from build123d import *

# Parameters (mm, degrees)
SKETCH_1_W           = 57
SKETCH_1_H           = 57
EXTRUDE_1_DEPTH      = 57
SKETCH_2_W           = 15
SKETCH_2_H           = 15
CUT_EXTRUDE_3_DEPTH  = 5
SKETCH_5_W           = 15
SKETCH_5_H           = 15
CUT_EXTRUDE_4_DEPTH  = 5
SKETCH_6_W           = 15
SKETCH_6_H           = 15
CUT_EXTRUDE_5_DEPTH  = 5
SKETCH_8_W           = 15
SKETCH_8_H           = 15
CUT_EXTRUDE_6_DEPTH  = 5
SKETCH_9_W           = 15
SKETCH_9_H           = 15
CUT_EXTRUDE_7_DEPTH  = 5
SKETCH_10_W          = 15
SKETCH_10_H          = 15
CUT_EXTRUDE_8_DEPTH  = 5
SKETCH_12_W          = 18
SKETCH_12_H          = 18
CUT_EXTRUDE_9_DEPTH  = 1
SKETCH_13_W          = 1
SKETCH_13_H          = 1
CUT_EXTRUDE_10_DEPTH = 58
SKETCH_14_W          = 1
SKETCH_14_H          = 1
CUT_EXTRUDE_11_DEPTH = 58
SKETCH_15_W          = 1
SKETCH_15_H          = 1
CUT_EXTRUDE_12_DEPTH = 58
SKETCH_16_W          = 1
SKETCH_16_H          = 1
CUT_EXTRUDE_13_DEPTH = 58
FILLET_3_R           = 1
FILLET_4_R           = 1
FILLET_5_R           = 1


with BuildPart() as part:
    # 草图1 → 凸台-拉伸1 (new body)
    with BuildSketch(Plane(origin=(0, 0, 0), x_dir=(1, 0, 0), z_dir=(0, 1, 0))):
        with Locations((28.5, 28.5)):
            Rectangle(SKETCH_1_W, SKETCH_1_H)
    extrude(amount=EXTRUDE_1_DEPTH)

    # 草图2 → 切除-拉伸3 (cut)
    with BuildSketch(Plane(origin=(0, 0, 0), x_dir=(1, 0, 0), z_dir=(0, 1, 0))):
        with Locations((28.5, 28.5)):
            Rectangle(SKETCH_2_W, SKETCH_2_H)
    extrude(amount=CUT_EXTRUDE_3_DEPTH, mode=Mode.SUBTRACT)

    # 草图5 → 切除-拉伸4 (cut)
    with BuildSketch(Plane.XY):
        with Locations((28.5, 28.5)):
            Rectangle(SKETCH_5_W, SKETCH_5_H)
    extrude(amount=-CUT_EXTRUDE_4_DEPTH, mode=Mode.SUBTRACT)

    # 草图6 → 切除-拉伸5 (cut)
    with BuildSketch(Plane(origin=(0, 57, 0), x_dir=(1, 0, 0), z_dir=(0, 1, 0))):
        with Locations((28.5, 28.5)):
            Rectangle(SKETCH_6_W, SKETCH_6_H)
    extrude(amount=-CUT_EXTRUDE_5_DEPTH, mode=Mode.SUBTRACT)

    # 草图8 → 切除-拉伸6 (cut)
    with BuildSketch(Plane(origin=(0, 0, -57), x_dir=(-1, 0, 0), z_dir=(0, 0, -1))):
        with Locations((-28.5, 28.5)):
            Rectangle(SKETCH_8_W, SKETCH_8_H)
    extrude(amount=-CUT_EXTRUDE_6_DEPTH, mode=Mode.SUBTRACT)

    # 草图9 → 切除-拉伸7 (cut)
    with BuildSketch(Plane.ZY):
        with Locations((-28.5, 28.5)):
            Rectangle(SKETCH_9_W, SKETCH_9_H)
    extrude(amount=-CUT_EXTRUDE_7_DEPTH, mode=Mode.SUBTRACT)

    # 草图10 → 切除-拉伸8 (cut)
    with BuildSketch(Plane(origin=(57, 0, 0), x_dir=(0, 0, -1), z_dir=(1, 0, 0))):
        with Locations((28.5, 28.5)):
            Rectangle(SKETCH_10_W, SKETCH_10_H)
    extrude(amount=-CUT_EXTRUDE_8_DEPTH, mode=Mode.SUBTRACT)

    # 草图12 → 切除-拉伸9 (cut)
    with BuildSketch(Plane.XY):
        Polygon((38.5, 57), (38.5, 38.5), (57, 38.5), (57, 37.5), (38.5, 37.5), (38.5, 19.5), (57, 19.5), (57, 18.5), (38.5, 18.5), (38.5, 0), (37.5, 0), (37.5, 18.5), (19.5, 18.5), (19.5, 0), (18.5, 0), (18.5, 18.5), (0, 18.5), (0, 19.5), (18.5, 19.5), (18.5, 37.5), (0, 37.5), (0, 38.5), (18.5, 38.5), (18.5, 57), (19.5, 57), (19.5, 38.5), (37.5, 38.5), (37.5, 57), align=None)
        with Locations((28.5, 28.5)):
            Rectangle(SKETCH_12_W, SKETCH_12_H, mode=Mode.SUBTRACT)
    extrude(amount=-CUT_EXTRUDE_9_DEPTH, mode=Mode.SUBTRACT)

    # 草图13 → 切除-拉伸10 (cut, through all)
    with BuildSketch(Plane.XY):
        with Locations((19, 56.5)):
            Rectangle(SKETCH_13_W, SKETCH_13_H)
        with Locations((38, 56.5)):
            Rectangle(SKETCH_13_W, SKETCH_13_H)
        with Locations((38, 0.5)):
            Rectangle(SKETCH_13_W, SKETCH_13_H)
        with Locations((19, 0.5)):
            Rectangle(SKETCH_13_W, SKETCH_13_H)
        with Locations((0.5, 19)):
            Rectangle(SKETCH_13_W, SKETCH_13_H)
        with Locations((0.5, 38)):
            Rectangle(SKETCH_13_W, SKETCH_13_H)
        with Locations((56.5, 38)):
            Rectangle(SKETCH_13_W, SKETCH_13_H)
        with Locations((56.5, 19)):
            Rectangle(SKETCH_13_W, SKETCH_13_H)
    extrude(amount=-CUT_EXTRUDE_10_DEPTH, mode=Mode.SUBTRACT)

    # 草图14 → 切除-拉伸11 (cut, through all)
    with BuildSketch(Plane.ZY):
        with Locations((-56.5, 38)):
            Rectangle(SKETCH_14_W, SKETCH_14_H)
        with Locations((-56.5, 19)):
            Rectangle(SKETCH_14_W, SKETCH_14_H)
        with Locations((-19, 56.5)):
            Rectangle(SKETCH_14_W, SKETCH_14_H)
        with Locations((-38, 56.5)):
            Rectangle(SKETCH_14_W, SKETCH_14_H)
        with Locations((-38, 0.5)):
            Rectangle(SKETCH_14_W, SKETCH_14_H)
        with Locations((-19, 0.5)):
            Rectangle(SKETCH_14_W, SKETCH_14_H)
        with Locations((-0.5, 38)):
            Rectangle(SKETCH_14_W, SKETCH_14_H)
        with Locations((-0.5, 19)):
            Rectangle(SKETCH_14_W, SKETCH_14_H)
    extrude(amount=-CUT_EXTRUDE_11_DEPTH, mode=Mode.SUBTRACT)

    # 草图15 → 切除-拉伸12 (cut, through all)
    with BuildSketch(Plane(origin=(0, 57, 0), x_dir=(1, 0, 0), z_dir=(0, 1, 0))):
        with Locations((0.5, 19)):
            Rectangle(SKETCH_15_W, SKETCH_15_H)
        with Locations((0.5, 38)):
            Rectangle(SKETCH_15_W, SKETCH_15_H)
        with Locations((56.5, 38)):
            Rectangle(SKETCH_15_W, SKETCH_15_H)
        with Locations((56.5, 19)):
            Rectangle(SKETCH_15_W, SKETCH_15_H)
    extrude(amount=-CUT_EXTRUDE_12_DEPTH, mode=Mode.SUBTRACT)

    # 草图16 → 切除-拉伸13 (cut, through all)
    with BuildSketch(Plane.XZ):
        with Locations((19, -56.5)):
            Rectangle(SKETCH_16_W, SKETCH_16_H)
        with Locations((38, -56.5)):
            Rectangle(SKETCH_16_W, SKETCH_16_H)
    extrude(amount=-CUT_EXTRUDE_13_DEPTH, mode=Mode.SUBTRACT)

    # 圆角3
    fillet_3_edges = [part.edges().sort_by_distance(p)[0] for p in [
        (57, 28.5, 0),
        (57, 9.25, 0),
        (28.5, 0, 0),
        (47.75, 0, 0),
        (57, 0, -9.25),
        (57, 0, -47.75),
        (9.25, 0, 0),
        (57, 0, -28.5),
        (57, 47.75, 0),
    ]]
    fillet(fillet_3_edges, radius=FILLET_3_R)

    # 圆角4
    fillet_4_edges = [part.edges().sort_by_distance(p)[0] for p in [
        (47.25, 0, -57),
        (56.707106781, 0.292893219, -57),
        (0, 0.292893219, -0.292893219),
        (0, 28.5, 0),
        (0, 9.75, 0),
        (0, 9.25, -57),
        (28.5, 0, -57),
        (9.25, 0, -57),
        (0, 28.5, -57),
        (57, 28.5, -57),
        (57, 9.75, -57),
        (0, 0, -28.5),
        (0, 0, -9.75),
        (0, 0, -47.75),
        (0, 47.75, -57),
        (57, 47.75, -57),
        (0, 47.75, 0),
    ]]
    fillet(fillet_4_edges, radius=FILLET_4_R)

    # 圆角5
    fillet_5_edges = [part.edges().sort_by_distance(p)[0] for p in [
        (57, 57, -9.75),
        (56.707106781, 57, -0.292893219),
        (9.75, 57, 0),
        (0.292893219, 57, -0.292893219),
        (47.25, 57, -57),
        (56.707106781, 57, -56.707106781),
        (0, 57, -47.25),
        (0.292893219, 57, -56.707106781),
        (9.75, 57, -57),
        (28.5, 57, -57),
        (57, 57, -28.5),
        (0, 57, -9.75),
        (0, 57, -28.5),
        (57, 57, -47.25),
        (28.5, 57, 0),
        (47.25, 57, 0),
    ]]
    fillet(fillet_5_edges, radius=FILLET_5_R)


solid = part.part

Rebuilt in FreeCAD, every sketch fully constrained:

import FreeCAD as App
import Part
import Sketcher

V = App.Vector


def edges_at(feature, points):
    """Names of the edges that pass closest to the given points."""
    edges = feature.Shape.Edges
    near = lambda p: min(range(len(edges)), key=lambda i: edges[i].distToShape(Part.Vertex(*p))[0])
    return sorted({f"Edge{near(p) + 1}" for p in points})


def add_polygon(sketch, points):
    """Adds a closed chain of lines whose ends are joined by coincident constraints."""
    first, n = sketch.GeometryCount, len(points)
    for a, b in zip(points, points[1:] + points[:1]):
        sketch.addGeometry(Part.LineSegment(App.Vector(*a, 0), App.Vector(*b, 0)), False)
    for i in range(n):
        sketch.addConstraint(Sketcher.Constraint("Coincident", first + i, 2, first + (i + 1) % n, 1))

doc = App.newDocument("Part")
body = doc.addObject("PartDesign::Body", "Body")

# Sketch on XZ plane
sketch1 = body.newObject("Sketcher::SketchObject", "Sketch")
sketch1.AttachmentSupport = (doc.getObject("XZ_Plane"), [""])
sketch1.MapMode = "FlatFace"
add_polygon(sketch1, [(0, -57), (0, 0), (57, 0), (57, -57)])  # lines 0-3
sketch1.addConstraint(Sketcher.Constraint("Vertical", 0))
sketch1.addConstraint(Sketcher.Constraint("Horizontal", 1))
sketch1.addConstraint(Sketcher.Constraint("Vertical", 2))
sketch1.addConstraint(Sketcher.Constraint("Horizontal", 3))
sketch1.addConstraint(Sketcher.Constraint("Coincident", 0, 2, -1, 1))
sketch1.addConstraint(Sketcher.Constraint("Equal", 3, 0))
sketch1.addConstraint(Sketcher.Constraint("DistanceX", 1, 1, 1, 2, 57.0))
pad1 = body.newObject("PartDesign::Pad", "Pad")
pad1.Profile = sketch1
pad1.Length = 57
pad1.Reversed = True

# Sketch on XZ plane
sketch2 = body.newObject("Sketcher::SketchObject", "Sketch001")
sketch2.AttachmentSupport = (doc.getObject("XZ_Plane"), [""])
sketch2.MapMode = "FlatFace"
add_polygon(sketch2, [(21, -36), (21, -21), (36, -21), (36, -36)])  # lines 0-3
sketch2.addConstraint(Sketcher.Constraint("Vertical", 0))
sketch2.addConstraint(Sketcher.Constraint("Horizontal", 1))
sketch2.addConstraint(Sketcher.Constraint("Vertical", 2))
sketch2.addConstraint(Sketcher.Constraint("Horizontal", 3))
sketch2.addConstraint(Sketcher.Constraint("Equal", 3, 0))
sketch2.addConstraint(Sketcher.Constraint("DistanceX", 1, 1, 1, 2, 15.0))
sketch2.addConstraint(Sketcher.Constraint("DistanceX", -1, 1, 0, 2, 21.0))
sketch2.addConstraint(Sketcher.Constraint("DistanceY", 0, 2, -1, 1, 21.0))
pocket1 = body.newObject("PartDesign::Pocket", "Pocket")
pocket1.Profile = sketch2
pocket1.Length = 5

# Sketch on XY plane
sketch3 = body.newObject("Sketcher::SketchObject", "Sketch002")
sketch3.AttachmentSupport = (doc.getObject("XY_Plane"), [""])
sketch3.MapMode = "FlatFace"
add_polygon(sketch3, [(21, 36), (21, 21), (36, 21), (36, 36)])  # lines 0-3
sketch3.addConstraint(Sketcher.Constraint("Vertical", 0))
sketch3.addConstraint(Sketcher.Constraint("Horizontal", 1))
sketch3.addConstraint(Sketcher.Constraint("Vertical", 2))
sketch3.addConstraint(Sketcher.Constraint("Horizontal", 3))
sketch3.addConstraint(Sketcher.Constraint("Equal", 3, 0))
sketch3.addConstraint(Sketcher.Constraint("DistanceX", 1, 1, 1, 2, 15.0))
sketch3.addConstraint(Sketcher.Constraint("DistanceX", -1, 1, 0, 2, 21.0))
sketch3.addConstraint(Sketcher.Constraint("DistanceY", -1, 1, 0, 2, 21.0))
pocket2 = body.newObject("PartDesign::Pocket", "Pocket001")
pocket2.Profile = sketch3
pocket2.Length = 5

# Sketch on XZ plane
sketch4 = body.newObject("Sketcher::SketchObject", "Sketch003")
sketch4.AttachmentSupport = (doc.getObject("XZ_Plane"), [""])
sketch4.MapMode = "FlatFace"
sketch4.AttachmentOffset = App.Placement(V(0, 0, -57), App.Rotation())
add_polygon(sketch4, [(21, -36), (21, -21), (36, -21), (36, -36)])  # lines 0-3
sketch4.addConstraint(Sketcher.Constraint("Vertical", 0))
sketch4.addConstraint(Sketcher.Constraint("Horizontal", 1))
sketch4.addConstraint(Sketcher.Constraint("Vertical", 2))
sketch4.addConstraint(Sketcher.Constraint("Horizontal", 3))
sketch4.addConstraint(Sketcher.Constraint("Equal", 3, 0))
sketch4.addConstraint(Sketcher.Constraint("DistanceX", 1, 1, 1, 2, 15.0))
sketch4.addConstraint(Sketcher.Constraint("DistanceX", -1, 1, 0, 2, 21.0))
sketch4.addConstraint(Sketcher.Constraint("DistanceY", 0, 2, -1, 1, 21.0))
pocket3 = body.newObject("PartDesign::Pocket", "Pocket002")
pocket3.Profile = sketch4
pocket3.Length = 5
pocket3.Reversed = True

# Sketch on XY plane
sketch5 = body.newObject("Sketcher::SketchObject", "Sketch004")
sketch5.AttachmentSupport = (doc.getObject("XY_Plane"), [""])
sketch5.MapMode = "FlatFace"
sketch5.AttachmentOffset = App.Placement(V(0, 0, -57), App.Rotation())
add_polygon(sketch5, [(36, 36), (36, 21), (21, 21), (21, 36)])  # lines 0-3
sketch5.addConstraint(Sketcher.Constraint("Vertical", 0))
sketch5.addConstraint(Sketcher.Constraint("Horizontal", 1))
sketch5.addConstraint(Sketcher.Constraint("Vertical", 2))
sketch5.addConstraint(Sketcher.Constraint("Horizontal", 3))
sketch5.addConstraint(Sketcher.Constraint("Equal", 3, 0))
sketch5.addConstraint(Sketcher.Constraint("DistanceX", 1, 2, 1, 1, 15.0))
sketch5.addConstraint(Sketcher.Constraint("DistanceX", -1, 1, 0, 2, 36.0))
sketch5.addConstraint(Sketcher.Constraint("DistanceY", -1, 1, 0, 2, 21.0))
pocket4 = body.newObject("PartDesign::Pocket", "Pocket003")
pocket4.Profile = sketch5
pocket4.Length = 5
pocket4.Reversed = True

# Sketch on YZ plane
sketch6 = body.newObject("Sketcher::SketchObject", "Sketch005")
sketch6.AttachmentSupport = (doc.getObject("YZ_Plane"), [""])
sketch6.MapMode = "FlatFace"
add_polygon(sketch6, [(36, -36), (21, -36), (21, -21), (36, -21)])  # lines 0-3
sketch6.addConstraint(Sketcher.Constraint("Horizontal", 0))
sketch6.addConstraint(Sketcher.Constraint("Vertical", 1))
sketch6.addConstraint(Sketcher.Constraint("Horizontal", 2))
sketch6.addConstraint(Sketcher.Constraint("Vertical", 3))
sketch6.addConstraint(Sketcher.Constraint("Equal", 2, 1))
sketch6.addConstraint(Sketcher.Constraint("DistanceX", 0, 2, 0, 1, 15.0))
sketch6.addConstraint(Sketcher.Constraint("DistanceX", -1, 1, 0, 2, 21.0))
sketch6.addConstraint(Sketcher.Constraint("DistanceY", 0, 2, -1, 1, 36.0))
pocket5 = body.newObject("PartDesign::Pocket", "Pocket004")
pocket5.Profile = sketch6
pocket5.Length = 5
pocket5.Reversed = True

# Sketch on YZ plane
sketch7 = body.newObject("Sketcher::SketchObject", "Sketch006")
sketch7.AttachmentSupport = (doc.getObject("YZ_Plane"), [""])
sketch7.MapMode = "FlatFace"
sketch7.AttachmentOffset = App.Placement(V(0, 0, 57), App.Rotation())
add_polygon(sketch7, [(36, -21), (21, -21), (21, -36), (36, -36)])  # lines 0-3
sketch7.addConstraint(Sketcher.Constraint("Horizontal", 0))
sketch7.addConstraint(Sketcher.Constraint("Vertical", 1))
sketch7.addConstraint(Sketcher.Constraint("Horizontal", 2))
sketch7.addConstraint(Sketcher.Constraint("Vertical", 3))
sketch7.addConstraint(Sketcher.Constraint("Equal", 2, 1))
sketch7.addConstraint(Sketcher.Constraint("DistanceX", 0, 2, 0, 1, 15.0))
sketch7.addConstraint(Sketcher.Constraint("DistanceX", -1, 1, 0, 2, 21.0))
sketch7.addConstraint(Sketcher.Constraint("DistanceY", 0, 2, -1, 1, 21.0))
pocket6 = body.newObject("PartDesign::Pocket", "Pocket005")
pocket6.Profile = sketch7
pocket6.Length = 5

# Sketch on XY plane
sketch8 = body.newObject("Sketcher::SketchObject", "Sketch007")
sketch8.AttachmentSupport = (doc.getObject("XY_Plane"), [""])
sketch8.MapMode = "FlatFace"
add_polygon(sketch8, [(38.5, 38.5), (38.5, 57), (37.5, 57), (37.5, 38.5), (19.5, 38.5), (19.5, 57), (18.5, 57), (18.5, 38.5), (0, 38.5), (0, 37.5), (18.5, 37.5), (18.5, 19.5), (0, 19.5), (0, 18.5), (18.5, 18.5), (18.5, 0), (19.5, 0), (19.5, 18.5), (37.5, 18.5), (37.5, 0), (38.5, 0), (38.5, 18.5), (57, 18.5), (57, 19.5), (38.5, 19.5), (38.5, 37.5), (57, 37.5), (57, 38.5)])  # lines 0-27
add_polygon(sketch8, [(19.5, 19.5), (19.5, 37.5), (37.5, 37.5), (37.5, 19.5)])  # lines 28-31
sketch8.addConstraint(Sketcher.Constraint("Vertical", 0))
sketch8.addConstraint(Sketcher.Constraint("Horizontal", 1))
sketch8.addConstraint(Sketcher.Constraint("Vertical", 2))
sketch8.addConstraint(Sketcher.Constraint("Horizontal", 3))
sketch8.addConstraint(Sketcher.Constraint("Vertical", 4))
sketch8.addConstraint(Sketcher.Constraint("Horizontal", 5))
sketch8.addConstraint(Sketcher.Constraint("Vertical", 6))
sketch8.addConstraint(Sketcher.Constraint("Horizontal", 7))
sketch8.addConstraint(Sketcher.Constraint("Vertical", 8))
sketch8.addConstraint(Sketcher.Constraint("Horizontal", 9))
sketch8.addConstraint(Sketcher.Constraint("Vertical", 10))
sketch8.addConstraint(Sketcher.Constraint("Horizontal", 11))
sketch8.addConstraint(Sketcher.Constraint("Vertical", 12))
sketch8.addConstraint(Sketcher.Constraint("Horizontal", 13))
sketch8.addConstraint(Sketcher.Constraint("Vertical", 14))
sketch8.addConstraint(Sketcher.Constraint("Horizontal", 15))
sketch8.addConstraint(Sketcher.Constraint("Vertical", 16))
sketch8.addConstraint(Sketcher.Constraint("Horizontal", 17))
sketch8.addConstraint(Sketcher.Constraint("Vertical", 18))
sketch8.addConstraint(Sketcher.Constraint("Horizontal", 19))
sketch8.addConstraint(Sketcher.Constraint("Vertical", 20))
sketch8.addConstraint(Sketcher.Constraint("Horizontal", 21))
sketch8.addConstraint(Sketcher.Constraint("Vertical", 22))
sketch8.addConstraint(Sketcher.Constraint("Horizontal", 23))
sketch8.addConstraint(Sketcher.Constraint("Vertical", 24))
sketch8.addConstraint(Sketcher.Constraint("Horizontal", 25))
sketch8.addConstraint(Sketcher.Constraint("Vertical", 26))
sketch8.addConstraint(Sketcher.Constraint("Horizontal", 27))
sketch8.addConstraint(Sketcher.Constraint("Vertical", 28))
sketch8.addConstraint(Sketcher.Constraint("Horizontal", 29))
sketch8.addConstraint(Sketcher.Constraint("Vertical", 30))
sketch8.addConstraint(Sketcher.Constraint("Horizontal", 31))
sketch8.addConstraint(Sketcher.Constraint("PointOnObject", 7, 2, -2))
sketch8.addConstraint(Sketcher.Constraint("PointOnObject", 11, 2, -2))
sketch8.addConstraint(Sketcher.Constraint("PointOnObject", 14, 2, -1))
sketch8.addConstraint(Sketcher.Constraint("PointOnObject", 18, 2, -1))
sketch8.addConstraint(Sketcher.Constraint("Horizontal", 1, 2, 4, 2))
sketch8.addConstraint(Sketcher.Constraint("Horizontal", 3, 2, 6, 2))
sketch8.addConstraint(Sketcher.Constraint("Horizontal", 13, 2, 16, 2))
sketch8.addConstraint(Sketcher.Constraint("Horizontal", 17, 2, 20, 2))
sketch8.addConstraint(Sketcher.Constraint("Horizontal", 11, 2, 22, 2))
sketch8.addConstraint(Sketcher.Constraint("Horizontal", 9, 2, 24, 2))
sketch8.addConstraint(Sketcher.Constraint("Horizontal", 7, 2, 26, 2))
sketch8.addConstraint(Sketcher.Constraint("Horizontal", 25, 2, 28, 2))
sketch8.addConstraint(Sketcher.Constraint("Horizontal", 23, 2, 30, 2))
sketch8.addConstraint(Sketcher.Constraint("Vertical", 6, 2, 9, 2))
sketch8.addConstraint(Sketcher.Constraint("Vertical", 10, 2, 13, 2))
sketch8.addConstraint(Sketcher.Constraint("Vertical", 4, 2, 15, 2))
sketch8.addConstraint(Sketcher.Constraint("Vertical", 2, 2, 17, 2))
sketch8.addConstraint(Sketcher.Constraint("Vertical", 0, 2, 19, 2))
sketch8.addConstraint(Sketcher.Constraint("Vertical", 20, 2, 23, 2))
sketch8.addConstraint(Sketcher.Constraint("Vertical", 22, 2, 25, 2))
sketch8.addConstraint(Sketcher.Constraint("Vertical", 16, 2, 28, 2))
sketch8.addConstraint(Sketcher.Constraint("Vertical", 18, 2, 29, 2))
sketch8.addConstraint(Sketcher.Constraint("Equal", 1, 5))
sketch8.addConstraint(Sketcher.Constraint("Equal", 13, 21))
sketch8.addConstraint(Sketcher.Constraint("Equal", 27, 0))
sketch8.addConstraint(Sketcher.Constraint("Equal", 19, 8))
sketch8.addConstraint(Sketcher.Constraint("Equal", 31, 10))
sketch8.addConstraint(Sketcher.Constraint("Equal", 8, 12))
sketch8.addConstraint(Sketcher.Constraint("Equal", 6, 14))
sketch8.addConstraint(Sketcher.Constraint("DistanceX", 1, 2, 1, 1, 1.0))
sketch8.addConstraint(Sketcher.Constraint("DistanceX", 3, 2, 3, 1, 18.0))
sketch8.addConstraint(Sketcher.Constraint("DistanceX", 7, 2, 7, 1, 18.5))
pocket7 = body.newObject("PartDesign::Pocket", "Pocket006")
pocket7.Profile = sketch8
pocket7.Length = 1

# Sketch on XY plane
sketch9 = body.newObject("Sketcher::SketchObject", "Sketch008")
sketch9.AttachmentSupport = (doc.getObject("XY_Plane"), [""])
sketch9.MapMode = "FlatFace"
add_polygon(sketch9, [(18.5, 57), (18.5, 56), (19.5, 56), (19.5, 57)])  # lines 0-3
add_polygon(sketch9, [(37.5, 57), (37.5, 56), (38.5, 56), (38.5, 57)])  # lines 4-7
add_polygon(sketch9, [(37.5, 1), (37.5, 0), (38.5, 0), (38.5, 1)])  # lines 8-11
add_polygon(sketch9, [(18.5, 1), (18.5, 0), (19.5, 0), (19.5, 1)])  # lines 12-15
add_polygon(sketch9, [(0, 19.5), (0, 18.5), (1, 18.5), (1, 19.5)])  # lines 16-19
add_polygon(sketch9, [(0, 38.5), (0, 37.5), (1, 37.5), (1, 38.5)])  # lines 20-23
add_polygon(sketch9, [(56, 38.5), (56, 37.5), (57, 37.5), (57, 38.5)])  # lines 24-27
add_polygon(sketch9, [(56, 19.5), (56, 18.5), (57, 18.5), (57, 19.5)])  # lines 28-31
sketch9.addConstraint(Sketcher.Constraint("Vertical", 0))
sketch9.addConstraint(Sketcher.Constraint("Horizontal", 1))
sketch9.addConstraint(Sketcher.Constraint("Vertical", 2))
sketch9.addConstraint(Sketcher.Constraint("Horizontal", 3))
sketch9.addConstraint(Sketcher.Constraint("Vertical", 4))
sketch9.addConstraint(Sketcher.Constraint("Horizontal", 5))
sketch9.addConstraint(Sketcher.Constraint("Vertical", 6))
sketch9.addConstraint(Sketcher.Constraint("Horizontal", 7))
sketch9.addConstraint(Sketcher.Constraint("Vertical", 8))
sketch9.addConstraint(Sketcher.Constraint("Horizontal", 9))
sketch9.addConstraint(Sketcher.Constraint("Vertical", 10))
sketch9.addConstraint(Sketcher.Constraint("Horizontal", 11))
sketch9.addConstraint(Sketcher.Constraint("Vertical", 12))
sketch9.addConstraint(Sketcher.Constraint("Horizontal", 13))
sketch9.addConstraint(Sketcher.Constraint("Vertical", 14))
sketch9.addConstraint(Sketcher.Constraint("Horizontal", 15))
sketch9.addConstraint(Sketcher.Constraint("Vertical", 16))
sketch9.addConstraint(Sketcher.Constraint("Horizontal", 17))
sketch9.addConstraint(Sketcher.Constraint("Vertical", 18))
sketch9.addConstraint(Sketcher.Constraint("Horizontal", 19))
sketch9.addConstraint(Sketcher.Constraint("Vertical", 20))
sketch9.addConstraint(Sketcher.Constraint("Horizontal", 21))
sketch9.addConstraint(Sketcher.Constraint("Vertical", 22))
sketch9.addConstraint(Sketcher.Constraint("Horizontal", 23))
sketch9.addConstraint(Sketcher.Constraint("Vertical", 24))
sketch9.addConstraint(Sketcher.Constraint("Horizontal", 25))
sketch9.addConstraint(Sketcher.Constraint("Vertical", 26))
sketch9.addConstraint(Sketcher.Constraint("Horizontal", 27))
sketch9.addConstraint(Sketcher.Constraint("Vertical", 28))
sketch9.addConstraint(Sketcher.Constraint("Horizontal", 29))
sketch9.addConstraint(Sketcher.Constraint("Vertical", 30))
sketch9.addConstraint(Sketcher.Constraint("Horizontal", 31))
sketch9.addConstraint(Sketcher.Constraint("PointOnObject", 8, 2, -1))
sketch9.addConstraint(Sketcher.Constraint("PointOnObject", 12, 2, -1))
sketch9.addConstraint(Sketcher.Constraint("PointOnObject", 16, 2, -2))
sketch9.addConstraint(Sketcher.Constraint("PointOnObject", 20, 2, -2))
sketch9.addConstraint(Sketcher.Constraint("Horizontal", 1, 2, 4, 2))
sketch9.addConstraint(Sketcher.Constraint("Horizontal", 3, 2, 6, 2))
sketch9.addConstraint(Sketcher.Constraint("Horizontal", 11, 2, 14, 2))
sketch9.addConstraint(Sketcher.Constraint("Horizontal", 21, 2, 24, 2))
sketch9.addConstraint(Sketcher.Constraint("Horizontal", 23, 2, 26, 2))
sketch9.addConstraint(Sketcher.Constraint("Horizontal", 17, 2, 28, 2))
sketch9.addConstraint(Sketcher.Constraint("Horizontal", 19, 2, 30, 2))
sketch9.addConstraint(Sketcher.Constraint("Vertical", 7, 2, 8, 2))
sketch9.addConstraint(Sketcher.Constraint("Vertical", 6, 2, 9, 2))
sketch9.addConstraint(Sketcher.Constraint("Vertical", 3, 2, 12, 2))
sketch9.addConstraint(Sketcher.Constraint("Vertical", 2, 2, 13, 2))
sketch9.addConstraint(Sketcher.Constraint("Vertical", 18, 2, 21, 2))
sketch9.addConstraint(Sketcher.Constraint("Vertical", 27, 2, 28, 2))
sketch9.addConstraint(Sketcher.Constraint("Vertical", 26, 2, 29, 2))
sketch9.addConstraint(Sketcher.Constraint("Equal", 3, 5))
sketch9.addConstraint(Sketcher.Constraint("Equal", 15, 17))
sketch9.addConstraint(Sketcher.Constraint("Equal", 23, 25))
sketch9.addConstraint(Sketcher.Constraint("Equal", 31, 0))
sketch9.addConstraint(Sketcher.Constraint("Equal", 6, 8))
sketch9.addConstraint(Sketcher.Constraint("Equal", 14, 16))
sketch9.addConstraint(Sketcher.Constraint("Equal", 18, 20))
sketch9.addConstraint(Sketcher.Constraint("DistanceX", 1, 1, 1, 2, 1.0))
sketch9.addConstraint(Sketcher.Constraint("DistanceY", -1, 1, 0, 2, 56.0))
sketch9.addConstraint(Sketcher.Constraint("DistanceX", -1, 1, 24, 2, 56.0))
sketch9.addConstraint(Sketcher.Constraint("DistanceX", 1, 2, 4, 2, 18.0))
sketch9.addConstraint(Sketcher.Constraint("DistanceY", 19, 2, 20, 2, 18.0))
sketch9.addConstraint(Sketcher.Constraint("DistanceX", -1, 1, 0, 2, 18.5))
sketch9.addConstraint(Sketcher.Constraint("DistanceY", -1, 1, 16, 2, 18.5))
pocket8 = body.newObject("PartDesign::Pocket", "Pocket007")
pocket8.Profile = sketch9
pocket8.Type = "ThroughAll"

# Sketch on YZ plane
sketch10 = body.newObject("Sketcher::SketchObject", "Sketch009")
sketch10.AttachmentSupport = (doc.getObject("YZ_Plane"), [""])
sketch10.MapMode = "FlatFace"
add_polygon(sketch10, [(38.5, -57), (37.5, -57), (37.5, -56), (38.5, -56)])  # lines 0-3
add_polygon(sketch10, [(19.5, -57), (18.5, -57), (18.5, -56), (19.5, -56)])  # lines 4-7
add_polygon(sketch10, [(57, -19.5), (56, -19.5), (56, -18.5), (57, -18.5)])  # lines 8-11
add_polygon(sketch10, [(57, -38.5), (56, -38.5), (56, -37.5), (57, -37.5)])  # lines 12-15
add_polygon(sketch10, [(1, -38.5), (0, -38.5), (0, -37.5), (1, -37.5)])  # lines 16-19
add_polygon(sketch10, [(1, -19.5), (0, -19.5), (0, -18.5), (1, -18.5)])  # lines 20-23
add_polygon(sketch10, [(38.5, -1), (37.5, -1), (37.5, 0), (38.5, 0)])  # lines 24-27
add_polygon(sketch10, [(19.5, -1), (18.5, -1), (18.5, 0), (19.5, 0)])  # lines 28-31
sketch10.addConstraint(Sketcher.Constraint("Horizontal", 0))
sketch10.addConstraint(Sketcher.Constraint("Vertical", 1))
sketch10.addConstraint(Sketcher.Constraint("Horizontal", 2))
sketch10.addConstraint(Sketcher.Constraint("Vertical", 3))
sketch10.addConstraint(Sketcher.Constraint("Horizontal", 4))
sketch10.addConstraint(Sketcher.Constraint("Vertical", 5))
sketch10.addConstraint(Sketcher.Constraint("Horizontal", 6))
sketch10.addConstraint(Sketcher.Constraint("Vertical", 7))
sketch10.addConstraint(Sketcher.Constraint("Horizontal", 8))
sketch10.addConstraint(Sketcher.Constraint("Vertical", 9))
sketch10.addConstraint(Sketcher.Constraint("Horizontal", 10))
sketch10.addConstraint(Sketcher.Constraint("Vertical", 11))
sketch10.addConstraint(Sketcher.Constraint("Horizontal", 12))
sketch10.addConstraint(Sketcher.Constraint("Vertical", 13))
sketch10.addConstraint(Sketcher.Constraint("Horizontal", 14))
sketch10.addConstraint(Sketcher.Constraint("Vertical", 15))
sketch10.addConstraint(Sketcher.Constraint("Horizontal", 16))
sketch10.addConstraint(Sketcher.Constraint("Vertical", 17))
sketch10.addConstraint(Sketcher.Constraint("Horizontal", 18))
sketch10.addConstraint(Sketcher.Constraint("Vertical", 19))
sketch10.addConstraint(Sketcher.Constraint("Horizontal", 20))
sketch10.addConstraint(Sketcher.Constraint("Vertical", 21))
sketch10.addConstraint(Sketcher.Constraint("Horizontal", 22))
sketch10.addConstraint(Sketcher.Constraint("Vertical", 23))
sketch10.addConstraint(Sketcher.Constraint("Horizontal", 24))
sketch10.addConstraint(Sketcher.Constraint("Vertical", 25))
sketch10.addConstraint(Sketcher.Constraint("Horizontal", 26))
sketch10.addConstraint(Sketcher.Constraint("Vertical", 27))
sketch10.addConstraint(Sketcher.Constraint("Horizontal", 28))
sketch10.addConstraint(Sketcher.Constraint("Vertical", 29))
sketch10.addConstraint(Sketcher.Constraint("Horizontal", 30))
sketch10.addConstraint(Sketcher.Constraint("Vertical", 31))
sketch10.addConstraint(Sketcher.Constraint("PointOnObject", 16, 2, -2))
sketch10.addConstraint(Sketcher.Constraint("PointOnObject", 20, 2, -2))
sketch10.addConstraint(Sketcher.Constraint("PointOnObject", 25, 2, -1))
sketch10.addConstraint(Sketcher.Constraint("PointOnObject", 29, 2, -1))
sketch10.addConstraint(Sketcher.Constraint("Horizontal", 3, 2, 4, 2))
sketch10.addConstraint(Sketcher.Constraint("Horizontal", 2, 2, 5, 2))
sketch10.addConstraint(Sketcher.Constraint("Horizontal", 15, 2, 16, 2))
sketch10.addConstraint(Sketcher.Constraint("Horizontal", 14, 2, 17, 2))
sketch10.addConstraint(Sketcher.Constraint("Horizontal", 11, 2, 20, 2))
sketch10.addConstraint(Sketcher.Constraint("Horizontal", 10, 2, 21, 2))
sketch10.addConstraint(Sketcher.Constraint("Horizontal", 27, 2, 28, 2))
sketch10.addConstraint(Sketcher.Constraint("Vertical", 9, 2, 12, 2))
sketch10.addConstraint(Sketcher.Constraint("Vertical", 11, 2, 14, 2))
sketch10.addConstraint(Sketcher.Constraint("Vertical", 19, 2, 22, 2))
sketch10.addConstraint(Sketcher.Constraint("Vertical", 1, 2, 24, 2))
sketch10.addConstraint(Sketcher.Constraint("Vertical", 3, 2, 26, 2))
sketch10.addConstraint(Sketcher.Constraint("Vertical", 5, 2, 28, 2))
sketch10.addConstraint(Sketcher.Constraint("Vertical", 7, 2, 30, 2))
sketch10.addConstraint(Sketcher.Constraint("Equal", 2, 4))
sketch10.addConstraint(Sketcher.Constraint("Equal", 6, 8))
sketch10.addConstraint(Sketcher.Constraint("Equal", 14, 16))
sketch10.addConstraint(Sketcher.Constraint("Equal", 30, 1))
sketch10.addConstraint(Sketcher.Constraint("Equal", 7, 9))
sketch10.addConstraint(Sketcher.Constraint("Equal", 11, 13))
sketch10.addConstraint(Sketcher.Constraint("Equal", 23, 25))
sketch10.addConstraint(Sketcher.Constraint("DistanceX", 0, 2, 0, 1, 1.0))
sketch10.addConstraint(Sketcher.Constraint("DistanceY", 0, 2, -1, 1, 57.0))
sketch10.addConstraint(Sketcher.Constraint("DistanceX", -1, 1, 8, 2, 56.0))
sketch10.addConstraint(Sketcher.Constraint("DistanceX", 4, 2, 0, 2, 19.0))
sketch10.addConstraint(Sketcher.Constraint("DistanceY", 12, 2, 8, 2, 19.0))
sketch10.addConstraint(Sketcher.Constraint("DistanceX", -1, 1, 0, 2, 37.5))
sketch10.addConstraint(Sketcher.Constraint("DistanceY", 8, 2, -1, 1, 19.5))
pocket9 = body.newObject("PartDesign::Pocket", "Pocket008")
pocket9.Profile = sketch10
pocket9.Type = "ThroughAll"
pocket9.Reversed = True

# Sketch on XZ plane
sketch11 = body.newObject("Sketcher::SketchObject", "Sketch010")
sketch11.AttachmentSupport = (doc.getObject("XZ_Plane"), [""])
sketch11.MapMode = "FlatFace"
sketch11.AttachmentOffset = App.Placement(V(0, 0, -57), App.Rotation())
add_polygon(sketch11, [(0, -19.5), (0, -18.5), (1, -18.5), (1, -19.5)])  # lines 0-3
add_polygon(sketch11, [(0, -38.5), (0, -37.5), (1, -37.5), (1, -38.5)])  # lines 4-7
add_polygon(sketch11, [(56, -38.5), (56, -37.5), (57, -37.5), (57, -38.5)])  # lines 8-11
add_polygon(sketch11, [(56, -19.5), (56, -18.5), (57, -18.5), (57, -19.5)])  # lines 12-15
sketch11.addConstraint(Sketcher.Constraint("Vertical", 0))
sketch11.addConstraint(Sketcher.Constraint("Horizontal", 1))
sketch11.addConstraint(Sketcher.Constraint("Vertical", 2))
sketch11.addConstraint(Sketcher.Constraint("Horizontal", 3))
sketch11.addConstraint(Sketcher.Constraint("Vertical", 4))
sketch11.addConstraint(Sketcher.Constraint("Horizontal", 5))
sketch11.addConstraint(Sketcher.Constraint("Vertical", 6))
sketch11.addConstraint(Sketcher.Constraint("Horizontal", 7))
sketch11.addConstraint(Sketcher.Constraint("Vertical", 8))
sketch11.addConstraint(Sketcher.Constraint("Horizontal", 9))
sketch11.addConstraint(Sketcher.Constraint("Vertical", 10))
sketch11.addConstraint(Sketcher.Constraint("Horizontal", 11))
sketch11.addConstraint(Sketcher.Constraint("Vertical", 12))
sketch11.addConstraint(Sketcher.Constraint("Horizontal", 13))
sketch11.addConstraint(Sketcher.Constraint("Vertical", 14))
sketch11.addConstraint(Sketcher.Constraint("Horizontal", 15))
sketch11.addConstraint(Sketcher.Constraint("PointOnObject", 0, 2, -2))
sketch11.addConstraint(Sketcher.Constraint("PointOnObject", 4, 2, -2))
sketch11.addConstraint(Sketcher.Constraint("Horizontal", 5, 2, 8, 2))
sketch11.addConstraint(Sketcher.Constraint("Horizontal", 7, 2, 10, 2))
sketch11.addConstraint(Sketcher.Constraint("Horizontal", 1, 2, 12, 2))
sketch11.addConstraint(Sketcher.Constraint("Horizontal", 3, 2, 14, 2))
sketch11.addConstraint(Sketcher.Constraint("Vertical", 2, 2, 5, 2))
sketch11.addConstraint(Sketcher.Constraint("Vertical", 11, 2, 12, 2))
sketch11.addConstraint(Sketcher.Constraint("Vertical", 10, 2, 13, 2))
sketch11.addConstraint(Sketcher.Constraint("Equal", 7, 9))
sketch11.addConstraint(Sketcher.Constraint("Equal", 15, 0))
sketch11.addConstraint(Sketcher.Constraint("Equal", 2, 4))
sketch11.addConstraint(Sketcher.Constraint("DistanceX", 1, 1, 1, 2, 1.0))
sketch11.addConstraint(Sketcher.Constraint("DistanceX", -1, 1, 8, 2, 56.0))
sketch11.addConstraint(Sketcher.Constraint("DistanceY", 4, 2, 3, 2, 18.0))
sketch11.addConstraint(Sketcher.Constraint("DistanceY", 0, 2, -1, 1, 18.5))
pocket10 = body.newObject("PartDesign::Pocket", "Pocket009")
pocket10.Profile = sketch11
pocket10.Type = "ThroughAll"
pocket10.Reversed = True

# Sketch on XZ plane
sketch12 = body.newObject("Sketcher::SketchObject", "Sketch011")
sketch12.AttachmentSupport = (doc.getObject("XZ_Plane"), [""])
sketch12.MapMode = "FlatFace"
add_polygon(sketch12, [(18.5, -56), (18.5, -57), (19.5, -57), (19.5, -56)])  # lines 0-3
add_polygon(sketch12, [(37.5, -56), (37.5, -57), (38.5, -57), (38.5, -56)])  # lines 4-7
sketch12.addConstraint(Sketcher.Constraint("Vertical", 0))
sketch12.addConstraint(Sketcher.Constraint("Horizontal", 1))
sketch12.addConstraint(Sketcher.Constraint("Vertical", 2))
sketch12.addConstraint(Sketcher.Constraint("Horizontal", 3))
sketch12.addConstraint(Sketcher.Constraint("Vertical", 4))
sketch12.addConstraint(Sketcher.Constraint("Horizontal", 5))
sketch12.addConstraint(Sketcher.Constraint("Vertical", 6))
sketch12.addConstraint(Sketcher.Constraint("Horizontal", 7))
sketch12.addConstraint(Sketcher.Constraint("Horizontal", 1, 2, 4, 2))
sketch12.addConstraint(Sketcher.Constraint("Horizontal", 3, 2, 6, 2))
sketch12.addConstraint(Sketcher.Constraint("Equal", 3, 5))
sketch12.addConstraint(Sketcher.Constraint("Equal", 7, 0))
sketch12.addConstraint(Sketcher.Constraint("DistanceX", 1, 1, 1, 2, 1.0))
sketch12.addConstraint(Sketcher.Constraint("DistanceY", 0, 2, -1, 1, 57.0))
sketch12.addConstraint(Sketcher.Constraint("DistanceX", 1, 2, 4, 2, 18.0))
sketch12.addConstraint(Sketcher.Constraint("DistanceX", -1, 1, 0, 2, 18.5))
pocket11 = body.newObject("PartDesign::Pocket", "Pocket010")
pocket11.Profile = sketch12
pocket11.Type = "ThroughAll"
doc.recompute()

fillet = body.newObject("PartDesign::Fillet", "Fillet")
fillet.Base = (pocket11, edges_at(pocket11, [
    (57, 28.5, 0),
    (57, 9.25, 0),
    (28.5, 0, 0),
    (47.75, 0, 0),
    (57, 0, -9.25),
    (57, 0, -47.75),
    (9.25, 0, 0),
    (57, 0, -28.5),
    (57, 47.75, 0),
]))
fillet.Radius = 1
doc.recompute()

fillet2 = body.newObject("PartDesign::Fillet", "Fillet001")
fillet2.Base = (fillet, edges_at(fillet, [
    (47.25, 0, -57),
    (56.707, 0.293, -57),
    (0, 0.293, -0.293),
    (0, 28.5, 0),
    (0, 9.75, 0),
    (0, 9.25, -57),
    (28.5, 0, -57),
    (9.25, 0, -57),
    (0, 28.5, -57),
    (57, 28.5, -57),
    (57, 9.75, -57),
    (0, 0, -28.5),
    (0, 0, -9.75),
    (0, 0, -47.75),
    (0, 47.75, -57),
    (57, 47.75, -57),
    (0, 47.75, 0),
]))
fillet2.Radius = 1
doc.recompute()

fillet3 = body.newObject("PartDesign::Fillet", "Fillet002")
fillet3.Base = (fillet2, edges_at(fillet2, [
    (57, 57, -9.75),
    (56.707, 57, -0.293),
    (9.75, 57, 0),
    (0.293, 57, -0.293),
    (47.25, 57, -57),
    (56.707, 57, -56.707),
    (0, 57, -47.25),
    (0.293, 57, -56.707),
    (9.75, 57, -57),
    (28.5, 57, -57),
    (57, 57, -28.5),
    (0, 57, -9.75),
    (0, 57, -28.5),
    (57, 57, -47.25),
    (28.5, 57, 0),
    (47.25, 57, 0),
]))
fillet3.Radius = 1

doc.recompute()
